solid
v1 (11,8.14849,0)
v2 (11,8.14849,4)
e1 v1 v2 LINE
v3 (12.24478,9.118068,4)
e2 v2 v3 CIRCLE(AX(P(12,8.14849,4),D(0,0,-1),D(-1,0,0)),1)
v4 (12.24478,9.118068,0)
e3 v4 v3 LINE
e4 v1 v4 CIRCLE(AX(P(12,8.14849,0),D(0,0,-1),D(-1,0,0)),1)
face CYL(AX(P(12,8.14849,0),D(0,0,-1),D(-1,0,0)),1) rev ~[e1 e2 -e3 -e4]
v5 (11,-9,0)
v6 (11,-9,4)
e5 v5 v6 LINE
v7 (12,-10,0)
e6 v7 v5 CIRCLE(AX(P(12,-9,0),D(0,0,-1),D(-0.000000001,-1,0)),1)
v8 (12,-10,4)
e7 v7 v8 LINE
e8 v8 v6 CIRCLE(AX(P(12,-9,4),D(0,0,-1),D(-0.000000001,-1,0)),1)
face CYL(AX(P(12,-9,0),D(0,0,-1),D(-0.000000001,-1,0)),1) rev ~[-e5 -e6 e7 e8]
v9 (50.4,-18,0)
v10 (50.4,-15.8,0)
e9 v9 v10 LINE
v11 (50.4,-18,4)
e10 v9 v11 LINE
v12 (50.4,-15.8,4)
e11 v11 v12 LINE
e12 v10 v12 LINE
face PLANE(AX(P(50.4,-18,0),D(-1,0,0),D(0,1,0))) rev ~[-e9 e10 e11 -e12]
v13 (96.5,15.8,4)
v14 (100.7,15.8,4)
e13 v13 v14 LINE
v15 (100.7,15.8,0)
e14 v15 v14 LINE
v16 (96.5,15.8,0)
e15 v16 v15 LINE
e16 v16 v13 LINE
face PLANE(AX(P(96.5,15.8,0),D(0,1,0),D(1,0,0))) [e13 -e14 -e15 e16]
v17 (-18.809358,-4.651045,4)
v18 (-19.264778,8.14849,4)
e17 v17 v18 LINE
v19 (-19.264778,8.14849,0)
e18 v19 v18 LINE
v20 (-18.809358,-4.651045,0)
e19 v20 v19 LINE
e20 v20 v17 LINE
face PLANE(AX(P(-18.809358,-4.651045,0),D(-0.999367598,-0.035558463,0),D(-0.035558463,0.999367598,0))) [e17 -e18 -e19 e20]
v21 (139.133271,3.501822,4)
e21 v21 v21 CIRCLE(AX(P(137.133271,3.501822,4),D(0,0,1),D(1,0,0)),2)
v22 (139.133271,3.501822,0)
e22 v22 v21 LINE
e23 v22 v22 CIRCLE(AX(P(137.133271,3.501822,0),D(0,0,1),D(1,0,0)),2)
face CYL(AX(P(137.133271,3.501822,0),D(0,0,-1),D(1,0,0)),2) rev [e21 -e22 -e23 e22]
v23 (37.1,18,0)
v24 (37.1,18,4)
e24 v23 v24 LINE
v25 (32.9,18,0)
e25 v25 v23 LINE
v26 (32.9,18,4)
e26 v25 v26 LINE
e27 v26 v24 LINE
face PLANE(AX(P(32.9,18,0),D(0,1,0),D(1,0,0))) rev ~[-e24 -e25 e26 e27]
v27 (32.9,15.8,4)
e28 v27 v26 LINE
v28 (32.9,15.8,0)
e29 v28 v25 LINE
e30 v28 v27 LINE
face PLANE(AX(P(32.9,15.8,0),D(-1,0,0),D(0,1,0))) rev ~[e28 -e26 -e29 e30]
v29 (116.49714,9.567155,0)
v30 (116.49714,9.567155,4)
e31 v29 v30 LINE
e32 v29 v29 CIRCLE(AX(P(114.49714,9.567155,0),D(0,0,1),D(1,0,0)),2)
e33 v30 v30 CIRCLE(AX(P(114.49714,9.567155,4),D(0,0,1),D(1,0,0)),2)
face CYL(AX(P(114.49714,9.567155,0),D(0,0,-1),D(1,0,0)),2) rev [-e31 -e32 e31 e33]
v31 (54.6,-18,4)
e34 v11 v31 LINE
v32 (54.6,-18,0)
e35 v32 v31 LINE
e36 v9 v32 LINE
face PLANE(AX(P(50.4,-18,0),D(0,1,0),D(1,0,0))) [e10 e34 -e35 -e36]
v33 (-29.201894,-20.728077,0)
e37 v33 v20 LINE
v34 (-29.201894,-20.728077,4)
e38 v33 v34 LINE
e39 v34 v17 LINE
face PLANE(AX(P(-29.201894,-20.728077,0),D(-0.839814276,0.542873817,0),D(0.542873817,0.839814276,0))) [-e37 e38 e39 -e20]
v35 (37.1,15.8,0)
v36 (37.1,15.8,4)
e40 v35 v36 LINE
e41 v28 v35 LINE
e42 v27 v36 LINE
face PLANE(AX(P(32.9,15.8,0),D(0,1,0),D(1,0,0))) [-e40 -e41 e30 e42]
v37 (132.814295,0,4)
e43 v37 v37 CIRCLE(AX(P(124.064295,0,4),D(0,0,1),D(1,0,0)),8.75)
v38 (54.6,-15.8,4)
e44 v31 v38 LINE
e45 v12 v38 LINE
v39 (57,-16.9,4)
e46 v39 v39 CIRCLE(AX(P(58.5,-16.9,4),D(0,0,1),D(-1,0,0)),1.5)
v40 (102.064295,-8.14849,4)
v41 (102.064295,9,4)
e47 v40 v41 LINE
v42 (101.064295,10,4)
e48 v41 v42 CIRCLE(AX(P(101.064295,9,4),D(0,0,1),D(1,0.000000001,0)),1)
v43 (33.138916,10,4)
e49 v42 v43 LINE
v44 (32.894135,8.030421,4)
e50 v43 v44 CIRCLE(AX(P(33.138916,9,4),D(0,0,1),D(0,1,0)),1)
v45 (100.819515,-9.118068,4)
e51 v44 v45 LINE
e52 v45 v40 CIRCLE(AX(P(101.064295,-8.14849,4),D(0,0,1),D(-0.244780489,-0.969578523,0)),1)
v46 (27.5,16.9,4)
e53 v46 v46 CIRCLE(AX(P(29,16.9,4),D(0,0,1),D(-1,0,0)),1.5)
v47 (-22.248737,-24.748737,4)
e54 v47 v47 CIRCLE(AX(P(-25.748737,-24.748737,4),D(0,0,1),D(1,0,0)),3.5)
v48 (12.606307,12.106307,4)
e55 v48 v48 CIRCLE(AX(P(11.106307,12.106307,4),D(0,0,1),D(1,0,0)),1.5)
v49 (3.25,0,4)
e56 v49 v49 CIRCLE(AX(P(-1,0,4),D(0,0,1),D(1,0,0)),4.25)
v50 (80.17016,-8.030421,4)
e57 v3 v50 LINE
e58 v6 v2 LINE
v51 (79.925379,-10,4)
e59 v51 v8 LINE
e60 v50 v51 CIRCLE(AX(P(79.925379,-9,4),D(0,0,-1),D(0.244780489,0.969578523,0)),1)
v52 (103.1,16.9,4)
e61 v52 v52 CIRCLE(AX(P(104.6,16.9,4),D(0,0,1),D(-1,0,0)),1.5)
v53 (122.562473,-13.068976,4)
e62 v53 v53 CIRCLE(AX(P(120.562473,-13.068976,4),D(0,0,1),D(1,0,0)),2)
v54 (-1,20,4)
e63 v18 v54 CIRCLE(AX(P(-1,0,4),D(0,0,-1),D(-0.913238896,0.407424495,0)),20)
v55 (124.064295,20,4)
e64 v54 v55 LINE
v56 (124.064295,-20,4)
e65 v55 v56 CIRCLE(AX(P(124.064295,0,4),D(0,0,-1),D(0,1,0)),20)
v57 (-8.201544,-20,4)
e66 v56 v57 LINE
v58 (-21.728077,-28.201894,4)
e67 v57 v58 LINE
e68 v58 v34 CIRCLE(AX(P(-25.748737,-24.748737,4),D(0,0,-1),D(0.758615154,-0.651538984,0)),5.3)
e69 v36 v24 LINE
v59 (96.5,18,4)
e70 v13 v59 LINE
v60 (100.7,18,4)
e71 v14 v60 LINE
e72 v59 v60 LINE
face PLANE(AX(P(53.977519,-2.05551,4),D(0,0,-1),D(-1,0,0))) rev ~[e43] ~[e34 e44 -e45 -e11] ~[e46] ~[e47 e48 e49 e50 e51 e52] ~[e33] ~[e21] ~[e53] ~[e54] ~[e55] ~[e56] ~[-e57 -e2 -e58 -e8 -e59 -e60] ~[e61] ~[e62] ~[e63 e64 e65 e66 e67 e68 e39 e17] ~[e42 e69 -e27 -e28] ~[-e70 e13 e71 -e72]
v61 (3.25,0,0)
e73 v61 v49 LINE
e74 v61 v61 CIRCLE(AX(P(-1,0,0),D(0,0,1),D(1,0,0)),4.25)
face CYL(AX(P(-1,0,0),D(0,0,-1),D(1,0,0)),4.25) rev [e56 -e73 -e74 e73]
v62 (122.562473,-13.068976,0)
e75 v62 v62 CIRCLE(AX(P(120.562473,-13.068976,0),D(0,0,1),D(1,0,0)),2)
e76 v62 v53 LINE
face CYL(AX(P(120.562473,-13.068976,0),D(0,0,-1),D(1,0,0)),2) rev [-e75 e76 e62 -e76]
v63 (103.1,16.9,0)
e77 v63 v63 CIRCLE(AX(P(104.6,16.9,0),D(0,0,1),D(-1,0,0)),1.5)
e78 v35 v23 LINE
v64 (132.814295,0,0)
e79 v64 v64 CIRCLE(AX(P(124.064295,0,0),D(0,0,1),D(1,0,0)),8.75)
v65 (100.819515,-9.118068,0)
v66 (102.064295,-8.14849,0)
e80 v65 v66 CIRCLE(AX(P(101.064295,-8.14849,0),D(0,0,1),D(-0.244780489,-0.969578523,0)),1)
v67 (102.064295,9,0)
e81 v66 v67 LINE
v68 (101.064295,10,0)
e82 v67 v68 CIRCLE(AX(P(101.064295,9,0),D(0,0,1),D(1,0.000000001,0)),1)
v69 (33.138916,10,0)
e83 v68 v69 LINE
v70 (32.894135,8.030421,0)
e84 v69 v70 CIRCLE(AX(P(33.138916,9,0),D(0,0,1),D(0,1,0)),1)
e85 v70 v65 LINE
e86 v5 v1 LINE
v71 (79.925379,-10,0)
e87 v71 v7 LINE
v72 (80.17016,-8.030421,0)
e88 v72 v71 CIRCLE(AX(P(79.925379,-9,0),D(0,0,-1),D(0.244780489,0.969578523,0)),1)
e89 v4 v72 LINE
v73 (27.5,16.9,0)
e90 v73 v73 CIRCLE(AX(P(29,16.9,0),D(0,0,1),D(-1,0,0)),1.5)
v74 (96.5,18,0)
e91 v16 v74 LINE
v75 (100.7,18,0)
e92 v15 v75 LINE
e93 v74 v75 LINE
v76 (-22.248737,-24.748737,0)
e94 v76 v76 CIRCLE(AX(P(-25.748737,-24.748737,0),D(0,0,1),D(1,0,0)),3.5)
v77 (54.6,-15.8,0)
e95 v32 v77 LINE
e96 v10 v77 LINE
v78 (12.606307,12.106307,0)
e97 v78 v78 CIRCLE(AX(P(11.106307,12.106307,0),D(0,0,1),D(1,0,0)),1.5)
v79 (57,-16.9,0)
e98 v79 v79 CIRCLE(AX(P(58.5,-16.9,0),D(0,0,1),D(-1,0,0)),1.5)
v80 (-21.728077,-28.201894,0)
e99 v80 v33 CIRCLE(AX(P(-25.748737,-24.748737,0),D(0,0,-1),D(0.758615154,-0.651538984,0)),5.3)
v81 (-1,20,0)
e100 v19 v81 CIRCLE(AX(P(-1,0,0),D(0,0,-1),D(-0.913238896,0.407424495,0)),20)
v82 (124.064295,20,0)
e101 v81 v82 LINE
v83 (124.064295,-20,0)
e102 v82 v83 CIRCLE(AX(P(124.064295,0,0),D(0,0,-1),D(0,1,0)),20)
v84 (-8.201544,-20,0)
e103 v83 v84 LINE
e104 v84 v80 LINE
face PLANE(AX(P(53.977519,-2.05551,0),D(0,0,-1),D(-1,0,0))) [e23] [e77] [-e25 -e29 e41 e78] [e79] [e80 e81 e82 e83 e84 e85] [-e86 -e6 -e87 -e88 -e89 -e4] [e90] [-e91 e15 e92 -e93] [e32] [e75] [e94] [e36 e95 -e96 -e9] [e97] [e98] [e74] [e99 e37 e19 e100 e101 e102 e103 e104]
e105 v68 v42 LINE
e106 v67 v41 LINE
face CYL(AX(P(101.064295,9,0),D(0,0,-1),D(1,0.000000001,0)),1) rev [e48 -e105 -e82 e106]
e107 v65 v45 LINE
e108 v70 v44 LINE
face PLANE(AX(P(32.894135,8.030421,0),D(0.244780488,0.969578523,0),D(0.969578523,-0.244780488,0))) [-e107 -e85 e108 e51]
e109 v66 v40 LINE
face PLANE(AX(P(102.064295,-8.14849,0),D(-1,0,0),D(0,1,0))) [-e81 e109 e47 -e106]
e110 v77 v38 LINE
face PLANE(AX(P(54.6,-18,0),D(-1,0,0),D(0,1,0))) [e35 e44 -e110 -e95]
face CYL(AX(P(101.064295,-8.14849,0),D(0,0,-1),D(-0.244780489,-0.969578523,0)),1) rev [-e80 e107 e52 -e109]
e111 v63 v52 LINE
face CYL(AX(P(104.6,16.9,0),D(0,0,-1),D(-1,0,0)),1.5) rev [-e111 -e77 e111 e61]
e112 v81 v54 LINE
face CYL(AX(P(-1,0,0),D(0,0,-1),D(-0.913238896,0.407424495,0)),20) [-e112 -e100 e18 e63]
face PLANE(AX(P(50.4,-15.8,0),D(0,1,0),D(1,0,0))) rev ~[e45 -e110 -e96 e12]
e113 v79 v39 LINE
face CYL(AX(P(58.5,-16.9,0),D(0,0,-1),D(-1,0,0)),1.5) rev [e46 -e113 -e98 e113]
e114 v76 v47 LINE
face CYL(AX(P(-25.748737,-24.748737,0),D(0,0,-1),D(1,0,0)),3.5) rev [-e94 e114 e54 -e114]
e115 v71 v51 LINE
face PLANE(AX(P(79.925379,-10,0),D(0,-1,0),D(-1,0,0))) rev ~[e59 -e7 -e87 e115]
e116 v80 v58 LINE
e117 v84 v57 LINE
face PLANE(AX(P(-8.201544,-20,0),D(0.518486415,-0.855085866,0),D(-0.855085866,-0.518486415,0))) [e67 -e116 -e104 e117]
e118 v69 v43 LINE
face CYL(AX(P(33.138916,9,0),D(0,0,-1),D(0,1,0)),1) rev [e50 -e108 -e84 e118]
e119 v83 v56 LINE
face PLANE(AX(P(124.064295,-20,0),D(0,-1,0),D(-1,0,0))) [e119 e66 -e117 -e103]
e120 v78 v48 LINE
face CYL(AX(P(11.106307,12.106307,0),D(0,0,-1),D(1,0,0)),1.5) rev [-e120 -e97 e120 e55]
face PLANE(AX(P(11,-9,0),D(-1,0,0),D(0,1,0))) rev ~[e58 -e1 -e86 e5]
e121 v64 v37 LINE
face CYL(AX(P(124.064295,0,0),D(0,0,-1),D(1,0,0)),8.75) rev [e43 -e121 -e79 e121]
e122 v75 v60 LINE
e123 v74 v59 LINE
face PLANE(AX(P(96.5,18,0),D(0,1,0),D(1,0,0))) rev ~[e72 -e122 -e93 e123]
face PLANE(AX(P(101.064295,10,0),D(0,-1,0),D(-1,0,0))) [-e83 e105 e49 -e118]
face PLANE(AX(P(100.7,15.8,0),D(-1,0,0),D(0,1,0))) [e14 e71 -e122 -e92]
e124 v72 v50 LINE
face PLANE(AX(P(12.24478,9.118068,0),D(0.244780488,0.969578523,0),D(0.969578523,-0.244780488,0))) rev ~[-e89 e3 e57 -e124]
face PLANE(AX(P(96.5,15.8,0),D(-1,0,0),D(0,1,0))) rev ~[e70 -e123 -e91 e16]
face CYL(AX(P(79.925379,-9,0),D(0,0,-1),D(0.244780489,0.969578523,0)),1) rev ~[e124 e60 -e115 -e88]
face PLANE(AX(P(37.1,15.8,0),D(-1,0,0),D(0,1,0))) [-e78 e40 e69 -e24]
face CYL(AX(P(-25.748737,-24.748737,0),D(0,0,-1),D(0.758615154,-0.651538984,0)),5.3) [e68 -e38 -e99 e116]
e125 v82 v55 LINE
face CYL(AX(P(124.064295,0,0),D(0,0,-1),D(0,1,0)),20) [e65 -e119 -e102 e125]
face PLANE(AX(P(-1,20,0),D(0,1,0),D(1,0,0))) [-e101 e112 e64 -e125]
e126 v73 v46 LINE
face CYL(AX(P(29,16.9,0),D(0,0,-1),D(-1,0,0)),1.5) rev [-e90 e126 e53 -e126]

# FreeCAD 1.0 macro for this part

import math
import FreeCAD as App
import Part
import Sketcher
from FreeCAD import Vector


def add_polygon(sketch, points):
    """Adds a closed chain of lines whose ends are joined by coincident constraints."""
    first, n = sketch.GeometryCount, len(points)
    for a, b in zip(points, points[1:] + points[:1]):
        sketch.addGeometry(Part.LineSegment(App.Vector(*a, 0), App.Vector(*b, 0)), False)
    for i in range(n):
        sketch.addConstraint(Sketcher.Constraint("Coincident", first + i, 2, first + (i + 1) % n, 1))

doc = App.newDocument("Part")
body = doc.addObject("PartDesign::Body", "Body")

# Sketch on XY plane
sketch1 = body.newObject("Sketcher::SketchObject", "Sketch")
sketch1.AttachmentSupport = (doc.getObject("XY_Plane"), [""])
sketch1.MapMode = "FlatFace"
sketch1.addGeometry(Part.LineSegment(Vector(124.1, 20, 0), Vector(-1, 20, 0)), False)  # 0
sketch1.addGeometry(Part.ArcOfCircle(Part.Circle(Vector(-1, 0, 0), Vector(0, 0, 1), 20), math.radians(90), math.radians(156)), False)  # 1
sketch1.addGeometry(Part.LineSegment(Vector(-19.3, 8.1, 0), Vector(-18.8, -4.7, 0)), False)  # 2
sketch1.addGeometry(Part.LineSegment(Vector(-18.8, -4.7, 0), Vector(-29.2, -20.7, 0)), False)  # 3
sketch1.addGeometry(Part.ArcOfCircle(Part.Circle(Vector(-25.7, -24.7, 0), Vector(0, 0, 1), 5.3), math.radians(131), math.radians(319)), False)  # 4
sketch1.addGeometry(Part.LineSegment(Vector(-21.7, -28.2, 0), Vector(-8.2, -20, 0)), False)  # 5
sketch1.addGeometry(Part.LineSegment(Vector(-8.2, -20, 0), Vector(124.1, -20, 0)), False)  # 6
sketch1.addGeometry(Part.ArcOfCircle(Part.Circle(Vector(124.1, 0, 0), Vector(0, 0, 1), 20), math.radians(-90), math.radians(90)), False)  # 7
sketch1.addGeometry(Part.Circle(Vector(58.5, -16.9, 0), Vector(0, 0, 1), 1.5), False)  # 8
sketch1.addGeometry(Part.Circle(Vector(120.6, -13.1, 0), Vector(0, 0, 1), 2), False)  # 9
add_polygon(sketch1, [(50.4, -18), (50.4, -15.8), (54.6, -15.8), (54.6, -18)])  # lines 10-13
sketch1.addGeometry(Part.Circle(Vector(-25.7, -24.7, 0), Vector(0, 0, 1), 3.5), False)  # 14
sketch1.addGeometry(Part.Circle(Vector(124.1, 0, 0), Vector(0, 0, 1), 8.8), False)  # 15
sketch1.addGeometry(Part.Circle(Vector(137.1, 3.5, 0), Vector(0, 0, 1), 2), False)  # 16
sketch1.addGeometry(Part.ArcOfCircle(Part.Circle(Vector(33.1, 9, 0), Vector(0, 0, 1), 1), math.radians(90), math.radians(256)), False)  # 17
sketch1.addGeometry(Part.LineSegment(Vector(33.1, 10, 0), Vector(101.1, 10, 0)), False)  # 18
sketch1.addGeometry(Part.ArcOfCircle(Part.Circle(Vector(101.1, 9, 0), Vector(0, 0, 1), 1), math.radians(0), math.radians(90)), False)  # 19
sketch1.addGeometry(Part.LineSegment(Vector(102.1, 9, 0), Vector(102.1, -8.1, 0)), False)  # 20
sketch1.addGeometry(Part.ArcOfCircle(Part.Circle(Vector(101.1, -8.1, 0), Vector(0, 0, 1), 1), math.radians(-104), math.radians(0)), False)  # 21
sketch1.addGeometry(Part.LineSegment(Vector(100.8, -9.1, 0), Vector(32.9, 8, 0)), False)  # 22
sketch1.addGeometry(Part.Circle(Vector(114.5, 9.6, 0), Vector(0, 0, 1), 2), False)  # 23
sketch1.addGeometry(Part.Circle(Vector(104.6, 16.9, 0), Vector(0, 0, 1), 1.5), False)  # 24
add_polygon(sketch1, [(96.5, 15.8), (96.5, 18), (100.7, 18), (100.7, 15.8)])  # lines 25-28
sketch1.addGeometry(Part.LineSegment(Vector(12.2, 9.1, 0), Vector(80.2, -8, 0)), False)  # 29
sketch1.addGeometry(Part.ArcOfCircle(Part.Circle(Vector(79.9, -9, 0), Vector(0, 0, 1), 1), math.radians(-90), math.radians(76)), False)  # 30
sketch1.addGeometry(Part.LineSegment(Vector(79.9, -10, 0), Vector(12, -10, 0)), False)  # 31
sketch1.addGeometry(Part.ArcOfCircle(Part.Circle(Vector(12, -9, 0), Vector(0, 0, 1), 1), math.radians(-180), math.radians(-90)), False)  # 32
sketch1.addGeometry(Part.LineSegment(Vector(11, -9, 0), Vector(11, 8.1, 0)), False)  # 33
sketch1.addGeometry(Part.ArcOfCircle(Part.Circle(Vector(12, 8.1, 0), Vector(0, 0, 1), 1), math.radians(76), math.radians(180)), False)  # 34
sketch1.addGeometry(Part.Circle(Vector(-1, 0, 0), Vector(0, 0, 1), 4.2), False)  # 35
add_polygon(sketch1, [(32.9, 15.8), (32.9, 18), (37.1, 18), (37.1, 15.8)])  # lines 36-39
sketch1.addGeometry(Part.Circle(Vector(29, 16.9, 0), Vector(0, 0, 1), 1.5), False)  # 40
sketch1.addGeometry(Part.Circle(Vector(11.1, 12.1, 0), Vector(0, 0, 1), 1.5), False)  # 41
sketch1.addConstraint(Sketcher.Constraint("Tangent", 0, 2, 1, 1))
sketch1.addConstraint(Sketcher.Constraint("Coincident", 1, 2, 2, 1))
sketch1.addConstraint(Sketcher.Constraint("Coincident", 2, 2, 3, 1))
sketch1.addConstraint(Sketcher.Constraint("Coincident", 3, 2, 4, 1))
sketch1.addConstraint(Sketcher.Constraint("Coincident", 4, 2, 5, 1))
sketch1.addConstraint(Sketcher.Constraint("Coincident", 5, 2, 6, 1))
sketch1.addConstraint(Sketcher.Constraint("Tangent", 6, 2, 7, 1))
sketch1.addConstraint(Sketcher.Constraint("Tangent", 7, 2, 0, 1))
sketch1.addConstraint(Sketcher.Constraint("Tangent", 17, 1, 18, 1))
sketch1.addConstraint(Sketcher.Constraint("Tangent", 18, 2, 19, 2))
sketch1.addConstraint(Sketcher.Constraint("Tangent", 19, 1, 20, 1))
sketch1.addConstraint(Sketcher.Constraint("Tangent", 20, 2, 21, 2))
sketch1.addConstraint(Sketcher.Constraint("Tangent", 21, 1, 22, 1))
sketch1.addConstraint(Sketcher.Constraint("Tangent", 22, 2, 17, 2))
sketch1.addConstraint(Sketcher.Constraint("Tangent", 29, 2, 30, 2))
sketch1.addConstraint(Sketcher.Constraint("Tangent", 30, 1, 31, 1))
sketch1.addConstraint(Sketcher.Constraint("Tangent", 31, 2, 32, 2))
sketch1.addConstraint(Sketcher.Constraint("Tangent", 32, 1, 33, 1))
sketch1.addConstraint(Sketcher.Constraint("Tangent", 33, 2, 34, 2))
sketch1.addConstraint(Sketcher.Constraint("Tangent", 34, 1, 29, 1))
sketch1.addConstraint(Sketcher.Constraint("Horizontal", 0))
sketch1.addConstraint(Sketcher.Constraint("Horizontal", 6))
sketch1.addConstraint(Sketcher.Constraint("Vertical", 10))
sketch1.addConstraint(Sketcher.Constraint("Horizontal", 11))
sketch1.addConstraint(Sketcher.Constraint("Vertical", 12))
sketch1.addConstraint(Sketcher.Constraint("Horizontal", 13))
sketch1.addConstraint(Sketcher.Constraint("Horizontal", 18))
sketch1.addConstraint(Sketcher.Constraint("Vertical", 20))
sketch1.addConstraint(Sketcher.Constraint("Vertical", 25))
sketch1.addConstraint(Sketcher.Constraint("Horizontal", 26))
sketch1.addConstraint(Sketcher.Constraint("Vertical", 27))
sketch1.addConstraint(Sketcher.Constraint("Horizontal", 28))
sketch1.addConstraint(Sketcher.Constraint("Horizontal", 31))
sketch1.addConstraint(Sketcher.Constraint("Vertical", 33))
sketch1.addConstraint(Sketcher.Constraint("Vertical", 36))
sketch1.addConstraint(Sketcher.Constraint("Horizontal", 37))
sketch1.addConstraint(Sketcher.Constraint("Vertical", 38))
sketch1.addConstraint(Sketcher.Constraint("Horizontal", 39))
sketch1.addConstraint(Sketcher.Constraint("Coincident", 14, 3, 4, 3))
sketch1.addConstraint(Sketcher.Constraint("Coincident", 15, 3, 7, 3))
sketch1.addConstraint(Sketcher.Constraint("Coincident", 35, 3, 1, 3))
sketch1.addConstraint(Sketcher.Constraint("Equal", 1, 7))
sketch1.addConstraint(Sketcher.Constraint("Equal", 9, 16))
sketch1.addConstraint(Sketcher.Constraint("Equal", 17, 19))
sketch1.addConstraint(Sketcher.Constraint("Equal", 19, 21))
sketch1.addConstraint(Sketcher.Constraint("Equal", 16, 23))
sketch1.addConstraint(Sketcher.Constraint("Equal", 8, 24))
sketch1.addConstraint(Sketcher.Constraint("Equal", 21, 30))
sketch1.addConstraint(Sketcher.Constraint("Equal", 30, 32))
sketch1.addConstraint(Sketcher.Constraint("Equal", 32, 34))
sketch1.addConstraint(Sketcher.Constraint("Equal", 24, 40))
sketch1.addConstraint(Sketcher.Constraint("Equal", 40, 41))
sketch1.addConstraint(Sketcher.Constraint("PointOnObject", 1, 3, -1))
sketch1.addConstraint(Sketcher.Constraint("Parallel", 22, 29))
sketch1.addConstraint(Sketcher.Constraint("Horizontal", 24, 3, 40, 3))
sketch1.addConstraint(Sketcher.Constraint("Horizontal", 34, 3, 1, 2))
sketch1.addConstraint(Sketcher.Constraint("Horizontal", 26, 2, 36, 2))
sketch1.addConstraint(Sketcher.Constraint("Horizontal", 28, 2, 38, 2))
sketch1.addConstraint(Sketcher.Constraint("Equal", 13, 26))
sketch1.addConstraint(Sketcher.Constraint("Equal", 18, 31))
sketch1.addConstraint(Sketcher.Constraint("Equal", 28, 37))
sketch1.addConstraint(Sketcher.Constraint("Equal", 12, 25))
sketch1.addConstraint(Sketcher.Constraint("Diameter", 8, 3.0))
sketch1.addConstraint(Sketcher.Constraint("Diameter", 9, 4.0))
sketch1.addConstraint(Sketcher.Constraint("Diameter", 14, 7.0))
sketch1.addConstraint(Sketcher.Constraint("Radius", 1, 20.0))
sketch1.addConstraint(Sketcher.Constraint("Radius", 17, 1.0))
sketch1.addConstraint(Sketcher.Constraint("Diameter", 15, 17.5))
sketch1.addConstraint(Sketcher.Constraint("Diameter", 35, 8.5))
sketch1.addConstraint(Sketcher.Constraint("Radius", 4, 5.3))
sketch1.addConstraint(Sketcher.Constraint("DistanceX", 11, 1, 11, 2, 4.2))
sketch1.addConstraint(Sketcher.Constraint("DistanceY", 10, 1, 10, 2, 2.2))
sketch1.addConstraint(Sketcher.Constraint("DistanceX", 1, 3, -1, 1, 1.0))
sketch1.addConstraint(Sketcher.Constraint("DistanceY", -1, 1, 17, 3, 9.0))
sketch1.addConstraint(Sketcher.Constraint("DistanceY", 30, 3, -1, 1, 9.0))
sketch1.addConstraint(Sketcher.Constraint("DistanceX", -1, 1, 32, 3, 12.0))
sketch1.addConstraint(Sketcher.Constraint("DistanceX", -1, 1, 40, 3, 29.0))
sketch1.addConstraint(Sketcher.Constraint("DistanceY", 12, 2, -1, 1, 18.0))
sketch1.addConstraint(Sketcher.Constraint("DistanceY", -1, 1, 25, 2, 18.0))
sketch1.addConstraint(Sketcher.Constraint("DistanceX", 19, 3, 7, 3, 23.0))
sketch1.addConstraint(Sketcher.Constraint("DistanceX", -1, 1, 8, 3, 58.5))
sketch1.addConstraint(Sketcher.Constraint("DistanceY", 8, 3, -1, 1, 16.9))
sketch1.addConstraint(Sketcher.Constraint("DistanceX", -1, 1, 24, 3, 104.6))
sketch1.addConstraint(Sketcher.Constraint("DistanceY", -1, 1, 24, 3, 16.9))
sketch1.addConstraint(Sketcher.Constraint("DistanceX", -1, 1, 10, 2, 50.4))
sketch1.addConstraint(Sketcher.Constraint("DistanceX", -1, 1, 25, 2, 96.5))
sketch1.addConstraint(Sketcher.Constraint("DistanceX", -1, 1, 36, 2, 32.9))
sketch1.addConstraint(Sketcher.Constraint("DistanceX", 6, 1, 6, 2, 132.265839))
sketch1.addConstraint(Sketcher.Constraint("DistanceX", 18, 1, 18, 2, 67.925379))
sketch1.addConstraint(Sketcher.Constraint("DistanceY", 20, 2, 20, 1, 17.14849))
sketch1.addConstraint(Sketcher.Constraint("DistanceX", 9, 3, 16, 3, 16.570798))
sketch1.addConstraint(Sketcher.Constraint("DistanceY", 9, 3, 16, 3, 16.570798))
sketch1.addConstraint(Sketcher.Constraint("DistanceX", 0, 2, 0, 1, 125.064295))
sketch1.addConstraint(Sketcher.Constraint("DistanceX", -1, 1, 16, 3, 137.133271))
sketch1.addConstraint(Sketcher.Constraint("DistanceY", -1, 1, 16, 3, 3.501822))
sketch1.addConstraint(Sketcher.Constraint("DistanceX", -1, 1, 23, 3, 114.49714))
sketch1.addConstraint(Sketcher.Constraint("DistanceX", 2, 2, -1, 1, 18.809358))
sketch1.addConstraint(Sketcher.Constraint("DistanceX", 4, 3, 9, 3, 146.311211))
sketch1.addConstraint(Sketcher.Constraint("DistanceY", 4, 3, 9, 3, 11.679761))
sketch1.addConstraint(Sketcher.Constraint("DistanceY", 9, 3, 23, 3, 22.636131))
sketch1.addConstraint(Sketcher.Constraint("DistanceY", 4, 3, 3, 2, 4.02066))
sketch1.addConstraint(Sketcher.Constraint("DistanceX", 4, 3, 4, 2, 4.02066))
sketch1.addConstraint(Sketcher.Constraint("DistanceY", 4, 2, 2, 2, 23.550849))
sketch1.addConstraint(Sketcher.Constraint("DistanceX", 41, 3, 17, 1, 22.032608))
sketch1.addConstraint(Sketcher.Constraint("DistanceY", 34, 1, 41, 3, 2.988239))
pad1 = body.newObject("PartDesign::Pad", "Pad")
pad1.Profile = sketch1
pad1.Length = 4

doc.recompute()
